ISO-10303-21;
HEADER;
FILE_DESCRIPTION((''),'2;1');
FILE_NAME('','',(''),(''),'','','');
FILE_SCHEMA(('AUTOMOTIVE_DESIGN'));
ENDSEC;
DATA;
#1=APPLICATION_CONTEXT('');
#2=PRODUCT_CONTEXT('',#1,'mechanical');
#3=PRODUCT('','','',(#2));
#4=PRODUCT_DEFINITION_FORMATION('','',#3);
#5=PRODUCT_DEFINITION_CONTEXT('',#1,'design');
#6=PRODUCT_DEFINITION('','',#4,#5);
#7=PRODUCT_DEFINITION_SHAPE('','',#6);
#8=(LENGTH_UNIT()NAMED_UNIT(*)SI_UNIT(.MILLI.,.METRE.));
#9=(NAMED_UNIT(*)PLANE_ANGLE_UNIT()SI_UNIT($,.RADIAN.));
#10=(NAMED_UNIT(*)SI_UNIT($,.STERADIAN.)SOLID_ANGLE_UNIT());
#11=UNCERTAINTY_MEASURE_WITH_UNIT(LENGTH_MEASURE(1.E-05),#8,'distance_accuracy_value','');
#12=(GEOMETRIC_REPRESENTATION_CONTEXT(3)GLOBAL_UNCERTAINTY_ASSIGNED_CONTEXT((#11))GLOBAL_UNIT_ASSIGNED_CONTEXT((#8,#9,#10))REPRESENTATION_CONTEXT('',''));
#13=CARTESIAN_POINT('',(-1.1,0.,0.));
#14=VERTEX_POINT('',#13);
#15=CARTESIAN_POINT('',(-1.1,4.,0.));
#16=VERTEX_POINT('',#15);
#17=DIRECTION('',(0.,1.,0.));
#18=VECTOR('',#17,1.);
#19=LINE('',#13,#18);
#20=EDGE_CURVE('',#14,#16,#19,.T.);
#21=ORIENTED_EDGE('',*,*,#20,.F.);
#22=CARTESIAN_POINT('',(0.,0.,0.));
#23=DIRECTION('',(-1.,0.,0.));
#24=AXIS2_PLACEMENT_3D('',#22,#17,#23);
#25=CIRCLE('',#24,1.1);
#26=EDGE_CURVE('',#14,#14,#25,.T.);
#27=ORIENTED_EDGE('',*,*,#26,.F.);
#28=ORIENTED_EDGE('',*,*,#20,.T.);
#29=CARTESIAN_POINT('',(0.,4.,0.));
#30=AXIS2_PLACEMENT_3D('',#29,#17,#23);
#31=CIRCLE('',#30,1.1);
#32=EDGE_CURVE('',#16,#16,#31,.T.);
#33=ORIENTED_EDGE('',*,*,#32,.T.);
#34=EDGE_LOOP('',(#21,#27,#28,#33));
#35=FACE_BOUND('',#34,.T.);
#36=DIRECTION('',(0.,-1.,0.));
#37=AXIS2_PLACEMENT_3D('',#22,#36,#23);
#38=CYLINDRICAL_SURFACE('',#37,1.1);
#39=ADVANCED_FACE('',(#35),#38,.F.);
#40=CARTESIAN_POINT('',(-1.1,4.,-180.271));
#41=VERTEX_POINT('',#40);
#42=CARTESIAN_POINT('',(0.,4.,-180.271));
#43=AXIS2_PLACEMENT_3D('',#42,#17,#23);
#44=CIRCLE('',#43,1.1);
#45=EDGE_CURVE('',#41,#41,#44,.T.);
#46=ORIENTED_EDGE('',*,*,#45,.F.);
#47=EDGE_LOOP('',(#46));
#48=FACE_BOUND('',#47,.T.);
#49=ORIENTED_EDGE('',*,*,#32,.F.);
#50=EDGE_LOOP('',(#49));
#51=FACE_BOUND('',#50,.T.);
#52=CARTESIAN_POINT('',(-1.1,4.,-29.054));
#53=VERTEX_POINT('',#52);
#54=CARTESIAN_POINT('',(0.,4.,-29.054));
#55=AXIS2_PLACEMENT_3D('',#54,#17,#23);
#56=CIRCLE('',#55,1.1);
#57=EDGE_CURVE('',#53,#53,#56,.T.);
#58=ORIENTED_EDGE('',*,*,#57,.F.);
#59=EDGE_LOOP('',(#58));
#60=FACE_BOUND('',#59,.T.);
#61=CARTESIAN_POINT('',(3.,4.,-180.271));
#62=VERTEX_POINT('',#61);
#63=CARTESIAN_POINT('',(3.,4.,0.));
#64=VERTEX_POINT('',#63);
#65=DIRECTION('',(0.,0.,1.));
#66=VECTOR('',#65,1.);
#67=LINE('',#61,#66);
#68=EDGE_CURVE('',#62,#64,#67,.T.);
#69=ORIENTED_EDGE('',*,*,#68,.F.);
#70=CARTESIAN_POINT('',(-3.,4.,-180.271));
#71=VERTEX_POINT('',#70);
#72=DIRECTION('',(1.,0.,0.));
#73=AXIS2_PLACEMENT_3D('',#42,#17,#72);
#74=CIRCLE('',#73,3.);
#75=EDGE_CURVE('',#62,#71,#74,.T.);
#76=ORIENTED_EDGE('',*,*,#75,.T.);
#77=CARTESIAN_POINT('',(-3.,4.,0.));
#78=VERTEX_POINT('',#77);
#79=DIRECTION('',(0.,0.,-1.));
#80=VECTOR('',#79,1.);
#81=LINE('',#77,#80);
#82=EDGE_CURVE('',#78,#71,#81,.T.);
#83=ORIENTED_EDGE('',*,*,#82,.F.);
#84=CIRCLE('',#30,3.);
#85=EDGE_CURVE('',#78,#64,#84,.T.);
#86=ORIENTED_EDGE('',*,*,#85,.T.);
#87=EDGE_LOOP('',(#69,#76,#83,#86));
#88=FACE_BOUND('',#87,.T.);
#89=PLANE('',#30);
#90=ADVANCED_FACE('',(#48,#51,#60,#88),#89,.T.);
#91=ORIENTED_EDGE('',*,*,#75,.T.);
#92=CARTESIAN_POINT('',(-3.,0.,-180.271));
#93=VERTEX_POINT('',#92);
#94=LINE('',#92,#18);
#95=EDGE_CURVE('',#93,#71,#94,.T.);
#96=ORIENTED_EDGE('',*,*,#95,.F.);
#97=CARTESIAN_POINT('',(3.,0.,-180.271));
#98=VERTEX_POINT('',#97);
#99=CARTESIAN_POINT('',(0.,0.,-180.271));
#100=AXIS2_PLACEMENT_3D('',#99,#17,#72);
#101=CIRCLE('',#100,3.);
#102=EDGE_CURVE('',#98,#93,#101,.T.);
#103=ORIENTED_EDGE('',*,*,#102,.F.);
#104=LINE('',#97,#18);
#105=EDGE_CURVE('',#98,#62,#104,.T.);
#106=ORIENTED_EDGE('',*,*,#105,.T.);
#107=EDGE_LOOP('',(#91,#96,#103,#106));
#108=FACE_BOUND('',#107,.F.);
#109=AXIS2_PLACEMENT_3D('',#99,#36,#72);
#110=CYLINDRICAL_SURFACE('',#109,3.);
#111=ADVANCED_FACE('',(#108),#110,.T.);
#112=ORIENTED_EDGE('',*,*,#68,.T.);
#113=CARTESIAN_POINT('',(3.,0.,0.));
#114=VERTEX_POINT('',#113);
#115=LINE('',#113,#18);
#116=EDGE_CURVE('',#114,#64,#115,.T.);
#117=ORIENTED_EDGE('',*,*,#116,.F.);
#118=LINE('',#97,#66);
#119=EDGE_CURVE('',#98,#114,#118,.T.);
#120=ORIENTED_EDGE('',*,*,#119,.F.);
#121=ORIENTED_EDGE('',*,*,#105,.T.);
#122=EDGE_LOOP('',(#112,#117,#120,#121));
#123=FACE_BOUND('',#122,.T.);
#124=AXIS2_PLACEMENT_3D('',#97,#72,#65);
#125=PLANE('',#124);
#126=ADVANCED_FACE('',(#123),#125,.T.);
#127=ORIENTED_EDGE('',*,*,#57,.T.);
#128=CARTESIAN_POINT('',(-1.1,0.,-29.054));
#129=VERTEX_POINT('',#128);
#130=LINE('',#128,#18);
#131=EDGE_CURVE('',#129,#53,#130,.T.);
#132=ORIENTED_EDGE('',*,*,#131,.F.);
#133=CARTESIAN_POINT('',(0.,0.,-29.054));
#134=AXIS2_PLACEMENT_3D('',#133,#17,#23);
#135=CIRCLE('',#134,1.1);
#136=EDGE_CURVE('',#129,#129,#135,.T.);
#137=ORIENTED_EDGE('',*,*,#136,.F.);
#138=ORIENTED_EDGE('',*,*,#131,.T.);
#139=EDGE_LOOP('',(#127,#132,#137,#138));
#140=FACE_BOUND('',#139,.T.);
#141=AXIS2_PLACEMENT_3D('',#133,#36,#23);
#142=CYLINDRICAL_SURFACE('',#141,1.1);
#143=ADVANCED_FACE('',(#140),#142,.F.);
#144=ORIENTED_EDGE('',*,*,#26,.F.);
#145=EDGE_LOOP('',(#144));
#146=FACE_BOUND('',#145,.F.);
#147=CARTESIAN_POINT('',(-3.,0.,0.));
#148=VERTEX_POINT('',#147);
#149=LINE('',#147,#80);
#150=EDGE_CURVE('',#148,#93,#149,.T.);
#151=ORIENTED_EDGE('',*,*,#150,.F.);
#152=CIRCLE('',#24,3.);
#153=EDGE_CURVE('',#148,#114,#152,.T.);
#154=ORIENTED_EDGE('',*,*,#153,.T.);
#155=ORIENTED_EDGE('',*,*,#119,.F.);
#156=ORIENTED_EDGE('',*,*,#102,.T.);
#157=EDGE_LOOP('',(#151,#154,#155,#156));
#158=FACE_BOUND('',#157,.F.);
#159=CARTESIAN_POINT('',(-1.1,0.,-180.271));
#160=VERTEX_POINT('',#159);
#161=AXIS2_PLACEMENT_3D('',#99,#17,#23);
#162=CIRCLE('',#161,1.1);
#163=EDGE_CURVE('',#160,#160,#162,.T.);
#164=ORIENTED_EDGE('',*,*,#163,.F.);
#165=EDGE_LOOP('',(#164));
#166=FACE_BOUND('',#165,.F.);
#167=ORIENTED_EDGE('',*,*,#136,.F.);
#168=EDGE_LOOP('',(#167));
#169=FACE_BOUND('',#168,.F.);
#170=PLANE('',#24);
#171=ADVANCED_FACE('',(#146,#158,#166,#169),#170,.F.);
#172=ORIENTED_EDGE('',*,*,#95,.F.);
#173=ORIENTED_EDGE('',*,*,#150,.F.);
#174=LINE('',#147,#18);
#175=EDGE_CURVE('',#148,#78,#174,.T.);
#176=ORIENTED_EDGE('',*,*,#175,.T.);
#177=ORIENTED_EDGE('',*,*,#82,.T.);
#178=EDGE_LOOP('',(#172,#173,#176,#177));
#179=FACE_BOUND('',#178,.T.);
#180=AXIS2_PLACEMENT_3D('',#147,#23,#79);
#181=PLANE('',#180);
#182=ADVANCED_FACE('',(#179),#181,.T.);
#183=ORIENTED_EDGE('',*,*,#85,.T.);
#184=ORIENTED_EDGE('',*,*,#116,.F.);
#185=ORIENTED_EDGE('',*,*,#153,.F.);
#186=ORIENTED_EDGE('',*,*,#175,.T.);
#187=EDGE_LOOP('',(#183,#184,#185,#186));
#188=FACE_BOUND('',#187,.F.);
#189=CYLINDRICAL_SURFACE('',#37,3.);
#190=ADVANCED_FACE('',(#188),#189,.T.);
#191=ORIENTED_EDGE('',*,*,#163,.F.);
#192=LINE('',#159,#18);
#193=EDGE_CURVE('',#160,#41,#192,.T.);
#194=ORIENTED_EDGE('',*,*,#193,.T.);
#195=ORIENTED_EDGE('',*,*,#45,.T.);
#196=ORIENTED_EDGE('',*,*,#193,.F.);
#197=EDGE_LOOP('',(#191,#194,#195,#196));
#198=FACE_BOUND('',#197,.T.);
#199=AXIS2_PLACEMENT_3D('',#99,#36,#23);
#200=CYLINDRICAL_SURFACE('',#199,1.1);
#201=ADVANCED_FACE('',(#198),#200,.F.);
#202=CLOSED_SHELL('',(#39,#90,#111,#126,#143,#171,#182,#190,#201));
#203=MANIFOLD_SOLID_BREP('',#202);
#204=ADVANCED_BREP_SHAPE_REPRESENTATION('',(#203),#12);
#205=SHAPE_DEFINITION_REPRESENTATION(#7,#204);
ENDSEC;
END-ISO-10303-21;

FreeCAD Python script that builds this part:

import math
import FreeCAD as App
import Part
import Sketcher
from FreeCAD import Vector

doc = App.newDocument("Part")
body = doc.addObject("PartDesign::Body", "Body")

sketch1 = body.newObject("Sketcher::SketchObject", "Sketch")
sketch1.AttachmentSupport = (doc.getObject("XZ_Plane"), [""])
sketch1.MapMode = "FlatFace"
sketch1.addGeometry([
    Part.LineSegment(Vector(-3, -180.3, 0), Vector(-3, 0, 0)),
    Part.ArcOfCircle(Part.Circle(Vector(0, 0, 0), Vector(0, 0, 1), 3), math.radians(0), math.radians(180)),
    Part.LineSegment(Vector(3, 0, 0), Vector(3, -180.3, 0)),
    Part.ArcOfCircle(Part.Circle(Vector(0, -180.3, 0), Vector(0, 0, 1), 3), math.radians(180), math.radians(360)),
    Part.Circle(Vector(0, -180.3, 0), Vector(0, 0, 1), 1.1),
    Part.Circle(Vector(0, -29.1, 0), Vector(0, 0, 1), 1.1),
    Part.Circle(Vector(0, 0, 0), Vector(0, 0, 1), 1.1),
], False)
sketch1.addConstraint([
    Sketcher.Constraint("Tangent", 0, 2, 1, 2),
    Sketcher.Constraint("Tangent", 1, 1, 2, 1),
    Sketcher.Constraint("Tangent", 2, 2, 3, 2),
    Sketcher.Constraint("Tangent", 3, 1, 0, 1),
    Sketcher.Constraint("Vertical", 0),
    Sketcher.Constraint("Vertical", 2),
    Sketcher.Constraint("Coincident", 1, 3, -1, 1),
    Sketcher.Constraint("Coincident", 6, 3, -1, 1),
    Sketcher.Constraint("Coincident", 4, 3, 3, 3),
    Sketcher.Constraint("Equal", 4, 5),
    Sketcher.Constraint("Equal", 5, 6),
    Sketcher.Constraint("PointOnObject", 5, 3, -2),
    Sketcher.Constraint("Radius", 1, 3.0),
    Sketcher.Constraint("Diameter", 4, 2.2),
    Sketcher.Constraint("DistanceY", 0, 1, 0, 2, 180.271),
    Sketcher.Constraint("DistanceY", 5, 3, -1, 1, 29.054),
])
pad1 = body.newObject("PartDesign::Pad", "Pad")
pad1.Profile = sketch1
pad1.Length = 4
pad1.Reversed = True

doc.recompute()
